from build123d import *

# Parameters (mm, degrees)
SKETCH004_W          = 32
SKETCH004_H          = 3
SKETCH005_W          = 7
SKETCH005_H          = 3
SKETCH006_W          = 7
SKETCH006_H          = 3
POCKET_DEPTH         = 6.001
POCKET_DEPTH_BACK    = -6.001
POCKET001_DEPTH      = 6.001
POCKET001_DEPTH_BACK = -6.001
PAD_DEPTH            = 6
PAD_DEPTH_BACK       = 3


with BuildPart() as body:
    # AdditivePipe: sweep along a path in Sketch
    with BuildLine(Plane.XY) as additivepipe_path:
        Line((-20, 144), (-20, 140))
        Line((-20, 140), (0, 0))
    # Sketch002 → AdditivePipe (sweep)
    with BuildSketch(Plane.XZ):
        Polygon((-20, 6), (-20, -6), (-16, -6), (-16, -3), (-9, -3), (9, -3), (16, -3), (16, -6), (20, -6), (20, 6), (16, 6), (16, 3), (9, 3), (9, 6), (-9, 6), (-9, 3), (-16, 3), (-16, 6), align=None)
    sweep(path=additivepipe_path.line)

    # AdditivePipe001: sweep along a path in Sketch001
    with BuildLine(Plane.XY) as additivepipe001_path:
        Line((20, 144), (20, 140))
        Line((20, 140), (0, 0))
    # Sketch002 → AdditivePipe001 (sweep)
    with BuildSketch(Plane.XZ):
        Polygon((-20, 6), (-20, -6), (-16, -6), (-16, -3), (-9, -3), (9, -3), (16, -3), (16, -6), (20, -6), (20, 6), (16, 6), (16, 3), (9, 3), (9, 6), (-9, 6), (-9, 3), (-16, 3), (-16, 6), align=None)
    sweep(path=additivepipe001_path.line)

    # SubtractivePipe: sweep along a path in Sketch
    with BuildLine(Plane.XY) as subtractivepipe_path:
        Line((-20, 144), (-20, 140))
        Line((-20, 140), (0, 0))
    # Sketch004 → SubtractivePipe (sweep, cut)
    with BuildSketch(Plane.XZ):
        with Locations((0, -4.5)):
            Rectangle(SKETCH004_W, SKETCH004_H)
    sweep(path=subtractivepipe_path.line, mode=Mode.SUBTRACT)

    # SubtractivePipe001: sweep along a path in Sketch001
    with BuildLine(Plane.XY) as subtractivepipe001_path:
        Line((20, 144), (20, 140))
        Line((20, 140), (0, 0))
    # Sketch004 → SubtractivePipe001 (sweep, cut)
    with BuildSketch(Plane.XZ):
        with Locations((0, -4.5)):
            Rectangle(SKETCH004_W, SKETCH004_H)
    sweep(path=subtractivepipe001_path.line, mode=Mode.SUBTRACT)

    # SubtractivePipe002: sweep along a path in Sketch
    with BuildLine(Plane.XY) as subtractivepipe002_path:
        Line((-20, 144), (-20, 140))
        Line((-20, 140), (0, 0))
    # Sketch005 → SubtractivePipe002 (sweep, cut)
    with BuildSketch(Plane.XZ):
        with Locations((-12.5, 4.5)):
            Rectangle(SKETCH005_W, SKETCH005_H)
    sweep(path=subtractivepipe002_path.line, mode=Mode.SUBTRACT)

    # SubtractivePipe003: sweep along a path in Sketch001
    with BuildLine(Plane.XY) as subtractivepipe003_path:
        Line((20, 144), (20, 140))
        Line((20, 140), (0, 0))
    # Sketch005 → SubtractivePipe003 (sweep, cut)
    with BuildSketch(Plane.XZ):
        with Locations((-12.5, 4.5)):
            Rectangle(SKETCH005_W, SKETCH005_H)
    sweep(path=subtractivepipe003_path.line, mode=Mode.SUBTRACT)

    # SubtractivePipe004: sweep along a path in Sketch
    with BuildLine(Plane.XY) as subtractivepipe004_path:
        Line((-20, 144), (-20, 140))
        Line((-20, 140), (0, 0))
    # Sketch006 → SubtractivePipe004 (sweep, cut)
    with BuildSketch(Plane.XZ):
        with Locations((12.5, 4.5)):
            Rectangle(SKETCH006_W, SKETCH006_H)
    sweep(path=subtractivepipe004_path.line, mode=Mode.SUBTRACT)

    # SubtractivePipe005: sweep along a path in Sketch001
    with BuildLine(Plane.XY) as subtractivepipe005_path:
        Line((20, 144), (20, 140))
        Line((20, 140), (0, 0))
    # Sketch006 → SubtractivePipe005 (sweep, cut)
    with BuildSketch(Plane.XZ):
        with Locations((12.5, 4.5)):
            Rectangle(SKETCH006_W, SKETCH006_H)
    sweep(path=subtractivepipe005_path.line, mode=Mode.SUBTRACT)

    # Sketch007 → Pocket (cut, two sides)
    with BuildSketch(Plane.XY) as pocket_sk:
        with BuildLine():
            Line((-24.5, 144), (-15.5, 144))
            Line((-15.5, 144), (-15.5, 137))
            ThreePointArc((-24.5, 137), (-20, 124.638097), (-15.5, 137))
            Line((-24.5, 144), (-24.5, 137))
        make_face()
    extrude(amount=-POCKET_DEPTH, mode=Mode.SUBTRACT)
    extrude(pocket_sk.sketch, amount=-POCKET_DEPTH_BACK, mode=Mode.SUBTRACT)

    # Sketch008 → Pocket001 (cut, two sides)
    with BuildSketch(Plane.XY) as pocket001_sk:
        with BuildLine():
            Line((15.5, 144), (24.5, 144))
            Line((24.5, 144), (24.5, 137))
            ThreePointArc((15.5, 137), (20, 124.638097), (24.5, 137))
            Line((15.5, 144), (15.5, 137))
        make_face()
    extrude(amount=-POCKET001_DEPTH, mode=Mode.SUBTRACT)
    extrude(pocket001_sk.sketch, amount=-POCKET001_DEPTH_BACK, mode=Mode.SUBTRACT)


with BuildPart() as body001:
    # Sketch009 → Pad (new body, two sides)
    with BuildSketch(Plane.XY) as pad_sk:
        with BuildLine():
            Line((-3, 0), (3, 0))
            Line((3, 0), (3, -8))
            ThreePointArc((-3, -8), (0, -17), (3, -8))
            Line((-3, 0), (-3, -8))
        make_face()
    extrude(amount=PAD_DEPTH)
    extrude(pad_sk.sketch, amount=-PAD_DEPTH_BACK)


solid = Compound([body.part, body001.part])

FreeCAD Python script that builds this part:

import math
import FreeCAD as App
import Part
import Sketcher
Q = App.Units.Quantity


def add_polygon(sketch, points):
    """Adds a closed chain of lines whose ends are joined by coincident constraints."""
    first, n = sketch.GeometryCount, len(points)
    for a, b in zip(points, points[1:] + points[:1]):
        sketch.addGeometry(Part.LineSegment(App.Vector(*a, 0), App.Vector(*b, 0)), False)
    for i in range(n):
        sketch.addConstraint(Sketcher.Constraint("Coincident", first + i, 2, first + (i + 1) % n, 1))

doc = App.newDocument("Part")
body = doc.addObject("PartDesign::Body", "Body")

# Sketch on XZ plane
sketch1 = doc.addObject("Sketcher::SketchObject", "Sketch")
body.addObject(sketch1)
sketch1.AttachmentSupport = (doc.XZ_Plane, [""])
sketch1.MapMode = "FlatFace"
add_polygon(sketch1, [(-20, 6), (-20, -6), (-16, -6), (-16, -3), (16, -3), (16, -6), (20, -6), (20, 6), (16, 6), (16, 3), (9, 3), (9, 6), (-9, 6), (-9, 3), (-16, 3), (-16, 6)])  # lines 0-15
sketch1.addConstraint([
    Sketcher.Constraint("Vertical", 0),
    Sketcher.Constraint("Horizontal", 1),
    Sketcher.Constraint("Vertical", 2),
    Sketcher.Constraint("Horizontal", 3),
    Sketcher.Constraint("Vertical", 4),
    Sketcher.Constraint("Horizontal", 5),
    Sketcher.Constraint("Vertical", 6),
    Sketcher.Constraint("Horizontal", 7),
    Sketcher.Constraint("Vertical", 8),
    Sketcher.Constraint("Horizontal", 9),
    Sketcher.Constraint("Vertical", 10),
    Sketcher.Constraint("Horizontal", 11),
    Sketcher.Constraint("Vertical", 12),
    Sketcher.Constraint("Horizontal", 13),
    Sketcher.Constraint("Vertical", 14),
    Sketcher.Constraint("Horizontal", 15),
    Sketcher.Constraint("Symmetric", 0, 2, 6, 2, -1, 1),
    Sketcher.Constraint("Symmetric", 2, 2, 8, 2, -1, 1),
    Sketcher.Constraint("Symmetric", 3, 2, 13, 2, -1, 1),
    Sketcher.Constraint("Symmetric", 1, 2, 4, 2, -2),
    Sketcher.Constraint("Horizontal", 7, 2, 10, 2),
    Sketcher.Constraint("Horizontal", 11, 2, 14, 2),
    Sketcher.Constraint("Equal", 9, 13),
    Sketcher.Constraint("DistanceX", 1, 1, 1, 2, Q("4 mm")),
    Sketcher.Constraint("DistanceX", 3, 1, 3, 2, Q("32 mm")),
    Sketcher.Constraint("DistanceX", 9, 2, 9, 1, Q("7 mm")),
    Sketcher.Constraint("DistanceY", 0, 2, 0, 1, Q("12 mm")),
    Sketcher.Constraint("DistanceY", 2, 1, 2, 2, Q("3 mm")),
])

# Sketch on XY plane
sketch2 = doc.addObject("Sketcher::SketchObject", "Sketch001")
body.addObject(sketch2)
sketch2.AttachmentSupport = (doc.XY_Plane, [""])
sketch2.MapMode = "FlatFace"
sketch2.addGeometry([
    Part.LineSegment(App.Vector(-20, 144, 0), App.Vector(-20, 140, 0)),
    Part.LineSegment(App.Vector(-20, 140, 0), App.Vector(0, 0, 0)),
], False)
sketch2.addConstraint([
    Sketcher.Constraint("Coincident", 0, 2, 1, 1),
    Sketcher.Constraint("Vertical", 0),
    Sketcher.Constraint("Coincident", 1, 2, -1, 1),
    Sketcher.Constraint("DistanceY", 0, 2, 0, 1, Q("4 mm")),
    Sketcher.Constraint("DistanceX", 0, 1, -1, 1, Q("20 mm")),
    Sketcher.Constraint("DistanceY", -1, 1, 0, 1, Q("144 mm")),
])
doc.recompute()

additivepipe = doc.addObject("PartDesign::AdditivePipe", "AdditivePipe")
body.addObject(additivepipe)
additivepipe.Profile = sketch1
additivepipe.Spine = (sketch2, ["Edge1", "Edge2"])

# Sketch on XZ plane
sketch3 = doc.addObject("Sketcher::SketchObject", "Sketch002")
body.addObject(sketch3)
sketch3.AttachmentSupport = (doc.XZ_Plane, [""])
sketch3.MapMode = "FlatFace"
add_polygon(sketch3, [(-20, 6), (-20, -6), (-16, -6), (-16, -3), (16, -3), (16, -6), (20, -6), (20, 6), (16, 6), (16, 3), (9, 3), (9, 6), (-9, 6), (-9, 3), (-16, 3), (-16, 6)])  # lines 0-15
sketch3.addConstraint([
    Sketcher.Constraint("Vertical", 0),
    Sketcher.Constraint("Horizontal", 1),
    Sketcher.Constraint("Vertical", 2),
    Sketcher.Constraint("Horizontal", 3),
    Sketcher.Constraint("Vertical", 4),
    Sketcher.Constraint("Horizontal", 5),
    Sketcher.Constraint("Vertical", 6),
    Sketcher.Constraint("Horizontal", 7),
    Sketcher.Constraint("Vertical", 8),
    Sketcher.Constraint("Horizontal", 9),
    Sketcher.Constraint("Vertical", 10),
    Sketcher.Constraint("Horizontal", 11),
    Sketcher.Constraint("Vertical", 12),
    Sketcher.Constraint("Horizontal", 13),
    Sketcher.Constraint("Vertical", 14),
    Sketcher.Constraint("Horizontal", 15),
    Sketcher.Constraint("Symmetric", 0, 2, 6, 2, -1, 1),
    Sketcher.Constraint("Symmetric", 2, 2, 8, 2, -1, 1),
    Sketcher.Constraint("Symmetric", 3, 2, 13, 2, -1, 1),
    Sketcher.Constraint("Symmetric", 1, 2, 4, 2, -2),
    Sketcher.Constraint("Horizontal", 7, 2, 10, 2),
    Sketcher.Constraint("Horizontal", 11, 2, 14, 2),
    Sketcher.Constraint("Equal", 9, 13),
    Sketcher.Constraint("DistanceX", 1, 1, 1, 2, Q("4 mm")),
    Sketcher.Constraint("DistanceX", 3, 1, 3, 2, Q("32 mm")),
    Sketcher.Constraint("DistanceX", 9, 2, 9, 1, Q("7 mm")),
    Sketcher.Constraint("DistanceY", 0, 2, 0, 1, Q("12 mm")),
    Sketcher.Constraint("DistanceY", 2, 1, 2, 2, Q("3 mm")),
])

# Sketch on XY plane
sketch4 = doc.addObject("Sketcher::SketchObject", "Sketch003")
body.addObject(sketch4)
sketch4.AttachmentSupport = (doc.XY_Plane, [""])
sketch4.MapMode = "FlatFace"
sketch4.addGeometry([
    Part.LineSegment(App.Vector(20, 144, 0), App.Vector(20, 140, 0)),
    Part.LineSegment(App.Vector(20, 140, 0), App.Vector(0, 0, 0)),
], False)
sketch4.addConstraint([
    Sketcher.Constraint("Coincident", 0, 2, 1, 1),
    Sketcher.Constraint("Vertical", 0),
    Sketcher.Constraint("Coincident", 1, 2, -1, 1),
    Sketcher.Constraint("DistanceY", 0, 2, 0, 1, Q("4 mm")),
    Sketcher.Constraint("DistanceX", -1, 1, 0, 1, Q("20 mm")),
    Sketcher.Constraint("DistanceY", -1, 1, 0, 1, Q("144 mm")),
])
doc.recompute()

additivepipe2 = doc.addObject("PartDesign::AdditivePipe", "AdditivePipe001")
body.addObject(additivepipe2)
additivepipe2.Profile = sketch3
additivepipe2.Spine = (sketch4, ["Edge1", "Edge2"])

# Sketch on XZ plane
sketch5 = doc.addObject("Sketcher::SketchObject", "Sketch004")
body.addObject(sketch5)
sketch5.AttachmentSupport = (doc.XZ_Plane, [""])
sketch5.MapMode = "FlatFace"
add_polygon(sketch5, [(-16, -3), (-16, -6), (16, -6), (16, -3)])  # lines 0-3
sketch5.addConstraint([
    Sketcher.Constraint("Vertical", 0),
    Sketcher.Constraint("Horizontal", 1),
    Sketcher.Constraint("Vertical", 2),
    Sketcher.Constraint("Horizontal", 3),
    Sketcher.Constraint("DistanceX", 1, 1, 1, 2, Q("32 mm")),
    Sketcher.Constraint("DistanceY", 0, 2, 0, 1, Q("3 mm")),
    Sketcher.Constraint("DistanceX", 0, 2, -1, 1, Q("16 mm")),
    Sketcher.Constraint("DistanceY", 0, 2, -1, 1, Q("6 mm")),
])

# Sketch on XY plane
sketch6 = doc.addObject("Sketcher::SketchObject", "Sketch005")
body.addObject(sketch6)
sketch6.AttachmentSupport = (doc.XY_Plane, [""])
sketch6.MapMode = "FlatFace"
sketch6.addGeometry([
    Part.LineSegment(App.Vector(-20, 144, 0), App.Vector(-20, 140, 0)),
    Part.LineSegment(App.Vector(-20, 140, 0), App.Vector(0, 0, 0)),
], False)
sketch6.addConstraint([
    Sketcher.Constraint("Coincident", 0, 2, 1, 1),
    Sketcher.Constraint("Vertical", 0),
    Sketcher.Constraint("Coincident", 1, 2, -1, 1),
    Sketcher.Constraint("DistanceY", 0, 2, 0, 1, Q("4 mm")),
    Sketcher.Constraint("DistanceX", 0, 1, -1, 1, Q("20 mm")),
    Sketcher.Constraint("DistanceY", -1, 1, 0, 1, Q("144 mm")),
])
doc.recompute()

subtractivepipe = doc.addObject("PartDesign::SubtractivePipe", "SubtractivePipe")
body.addObject(subtractivepipe)
subtractivepipe.Profile = sketch5
subtractivepipe.Spine = (sketch6, ["Edge1", "Edge2"])

# Sketch on XZ plane
sketch7 = doc.addObject("Sketcher::SketchObject", "Sketch006")
body.addObject(sketch7)
sketch7.AttachmentSupport = (doc.XZ_Plane, [""])
sketch7.MapMode = "FlatFace"
add_polygon(sketch7, [(-16, -3), (-16, -6), (16, -6), (16, -3)])  # lines 0-3
sketch7.addConstraint([
    Sketcher.Constraint("Vertical", 0),
    Sketcher.Constraint("Horizontal", 1),
    Sketcher.Constraint("Vertical", 2),
    Sketcher.Constraint("Horizontal", 3),
    Sketcher.Constraint("DistanceX", 1, 1, 1, 2, Q("32 mm")),
    Sketcher.Constraint("DistanceY", 0, 2, 0, 1, Q("3 mm")),
    Sketcher.Constraint("DistanceX", 0, 2, -1, 1, Q("16 mm")),
    Sketcher.Constraint("DistanceY", 0, 2, -1, 1, Q("6 mm")),
])

# Sketch on XY plane
sketch8 = doc.addObject("Sketcher::SketchObject", "Sketch007")
body.addObject(sketch8)
sketch8.AttachmentSupport = (doc.XY_Plane, [""])
sketch8.MapMode = "FlatFace"
sketch8.addGeometry([
    Part.LineSegment(App.Vector(20, 144, 0), App.Vector(20, 140, 0)),
    Part.LineSegment(App.Vector(20, 140, 0), App.Vector(0, 0, 0)),
], False)
sketch8.addConstraint([
    Sketcher.Constraint("Coincident", 0, 2, 1, 1),
    Sketcher.Constraint("Vertical", 0),
    Sketcher.Constraint("Coincident", 1, 2, -1, 1),
    Sketcher.Constraint("DistanceY", 0, 2, 0, 1, Q("4 mm")),
    Sketcher.Constraint("DistanceX", -1, 1, 0, 1, Q("20 mm")),
    Sketcher.Constraint("DistanceY", -1, 1, 0, 1, Q("144 mm")),
])
doc.recompute()

subtractivepipe2 = doc.addObject("PartDesign::SubtractivePipe", "SubtractivePipe001")
body.addObject(subtractivepipe2)
subtractivepipe2.Profile = sketch7
subtractivepipe2.Spine = (sketch8, ["Edge1", "Edge2"])

# Sketch on XZ plane
sketch9 = doc.addObject("Sketcher::SketchObject", "Sketch008")
body.addObject(sketch9)
sketch9.AttachmentSupport = (doc.XZ_Plane, [""])
sketch9.MapMode = "FlatFace"
add_polygon(sketch9, [(-16, 6), (-16, 3), (-9, 3), (-9, 6)])  # lines 0-3
sketch9.addConstraint([
    Sketcher.Constraint("Vertical", 0),
    Sketcher.Constraint("Horizontal", 1),
    Sketcher.Constraint("Vertical", 2),
    Sketcher.Constraint("Horizontal", 3),
    Sketcher.Constraint("DistanceX", 1, 1, 1, 2, Q("7 mm")),
    Sketcher.Constraint("DistanceY", 0, 2, 0, 1, Q("3 mm")),
    Sketcher.Constraint("DistanceX", 0, 2, -1, 1, Q("16 mm")),
    Sketcher.Constraint("DistanceY", -1, 1, 0, 2, Q("3 mm")),
])

# Sketch on XY plane
sketch10 = doc.addObject("Sketcher::SketchObject", "Sketch009")
body.addObject(sketch10)
sketch10.AttachmentSupport = (doc.XY_Plane, [""])
sketch10.MapMode = "FlatFace"
sketch10.addGeometry([
    Part.LineSegment(App.Vector(-20, 144, 0), App.Vector(-20, 140, 0)),
    Part.LineSegment(App.Vector(-20, 140, 0), App.Vector(0, 0, 0)),
], False)
sketch10.addConstraint([
    Sketcher.Constraint("Coincident", 0, 2, 1, 1),
    Sketcher.Constraint("Vertical", 0),
    Sketcher.Constraint("Coincident", 1, 2, -1, 1),
    Sketcher.Constraint("DistanceY", 0, 2, 0, 1, Q("4 mm")),
    Sketcher.Constraint("DistanceX", 0, 1, -1, 1, Q("20 mm")),
    Sketcher.Constraint("DistanceY", -1, 1, 0, 1, Q("144 mm")),
])
doc.recompute()

subtractivepipe3 = doc.addObject("PartDesign::SubtractivePipe", "SubtractivePipe002")
body.addObject(subtractivepipe3)
subtractivepipe3.Profile = sketch9
subtractivepipe3.Spine = (sketch10, ["Edge1", "Edge2"])

# Sketch on XZ plane
sketch11 = doc.addObject("Sketcher::SketchObject", "Sketch010")
body.addObject(sketch11)
sketch11.AttachmentSupport = (doc.XZ_Plane, [""])
sketch11.MapMode = "FlatFace"
add_polygon(sketch11, [(-16, 6), (-16, 3), (-9, 3), (-9, 6)])  # lines 0-3
sketch11.addConstraint([
    Sketcher.Constraint("Vertical", 0),
    Sketcher.Constraint("Horizontal", 1),
    Sketcher.Constraint("Vertical", 2),
    Sketcher.Constraint("Horizontal", 3),
    Sketcher.Constraint("DistanceX", 1, 1, 1, 2, Q("7 mm")),
    Sketcher.Constraint("DistanceY", 0, 2, 0, 1, Q("3 mm")),
    Sketcher.Constraint("DistanceX", 0, 2, -1, 1, Q("16 mm")),
    Sketcher.Constraint("DistanceY", -1, 1, 0, 2, Q("3 mm")),
])

# Sketch on XY plane
sketch12 = doc.addObject("Sketcher::SketchObject", "Sketch011")
body.addObject(sketch12)
sketch12.AttachmentSupport = (doc.XY_Plane, [""])
sketch12.MapMode = "FlatFace"
sketch12.addGeometry([
    Part.LineSegment(App.Vector(20, 144, 0), App.Vector(20, 140, 0)),
    Part.LineSegment(App.Vector(20, 140, 0), App.Vector(0, 0, 0)),
], False)
sketch12.addConstraint([
    Sketcher.Constraint("Coincident", 0, 2, 1, 1),
    Sketcher.Constraint("Vertical", 0),
    Sketcher.Constraint("Coincident", 1, 2, -1, 1),
    Sketcher.Constraint("DistanceY", 0, 2, 0, 1, Q("4 mm")),
    Sketcher.Constraint("DistanceX", -1, 1, 0, 1, Q("20 mm")),
    Sketcher.Constraint("DistanceY", -1, 1, 0, 1, Q("144 mm")),
])
doc.recompute()

subtractivepipe4 = doc.addObject("PartDesign::SubtractivePipe", "SubtractivePipe003")
body.addObject(subtractivepipe4)
subtractivepipe4.Profile = sketch11
subtractivepipe4.Spine = (sketch12, ["Edge1", "Edge2"])

# Sketch on XZ plane
sketch13 = doc.addObject("Sketcher::SketchObject", "Sketch012")
body.addObject(sketch13)
sketch13.AttachmentSupport = (doc.XZ_Plane, [""])
sketch13.MapMode = "FlatFace"
add_polygon(sketch13, [(9, 6), (9, 3), (16, 3), (16, 6)])  # lines 0-3
sketch13.addConstraint([
    Sketcher.Constraint("Vertical", 0),
    Sketcher.Constraint("Horizontal", 1),
    Sketcher.Constraint("Vertical", 2),
    Sketcher.Constraint("Horizontal", 3),
    Sketcher.Constraint("DistanceX", 1, 1, 1, 2, Q("7 mm")),
    Sketcher.Constraint("DistanceY", 0, 2, 0, 1, Q("3 mm")),
    Sketcher.Constraint("DistanceX", -1, 1, 0, 2, Q("9 mm")),
    Sketcher.Constraint("DistanceY", -1, 1, 0, 2, Q("3 mm")),
])

# Sketch on XY plane
sketch14 = doc.addObject("Sketcher::SketchObject", "Sketch013")
body.addObject(sketch14)
sketch14.AttachmentSupport = (doc.XY_Plane, [""])
sketch14.MapMode = "FlatFace"
sketch14.addGeometry([
    Part.LineSegment(App.Vector(-20, 144, 0), App.Vector(-20, 140, 0)),
    Part.LineSegment(App.Vector(-20, 140, 0), App.Vector(0, 0, 0)),
], False)
sketch14.addConstraint([
    Sketcher.Constraint("Coincident", 0, 2, 1, 1),
    Sketcher.Constraint("Vertical", 0),
    Sketcher.Constraint("Coincident", 1, 2, -1, 1),
    Sketcher.Constraint("DistanceY", 0, 2, 0, 1, Q("4 mm")),
    Sketcher.Constraint("DistanceX", 0, 1, -1, 1, Q("20 mm")),
    Sketcher.Constraint("DistanceY", -1, 1, 0, 1, Q("144 mm")),
])
doc.recompute()

subtractivepipe5 = doc.addObject("PartDesign::SubtractivePipe", "SubtractivePipe004")
body.addObject(subtractivepipe5)
subtractivepipe5.Profile = sketch13
subtractivepipe5.Spine = (sketch14, ["Edge1", "Edge2"])

# Sketch on XZ plane
sketch15 = doc.addObject("Sketcher::SketchObject", "Sketch014")
body.addObject(sketch15)
sketch15.AttachmentSupport = (doc.XZ_Plane, [""])
sketch15.MapMode = "FlatFace"
add_polygon(sketch15, [(9, 6), (9, 3), (16, 3), (16, 6)])  # lines 0-3
sketch15.addConstraint([
    Sketcher.Constraint("Vertical", 0),
    Sketcher.Constraint("Horizontal", 1),
    Sketcher.Constraint("Vertical", 2),
    Sketcher.Constraint("Horizontal", 3),
    Sketcher.Constraint("DistanceX", 1, 1, 1, 2, Q("7 mm")),
    Sketcher.Constraint("DistanceY", 0, 2, 0, 1, Q("3 mm")),
    Sketcher.Constraint("DistanceX", -1, 1, 0, 2, Q("9 mm")),
    Sketcher.Constraint("DistanceY", -1, 1, 0, 2, Q("3 mm")),
])

# Sketch on XY plane
sketch16 = doc.addObject("Sketcher::SketchObject", "Sketch015")
body.addObject(sketch16)
sketch16.AttachmentSupport = (doc.XY_Plane, [""])
sketch16.MapMode = "FlatFace"
sketch16.addGeometry([
    Part.LineSegment(App.Vector(20, 144, 0), App.Vector(20, 140, 0)),
    Part.LineSegment(App.Vector(20, 140, 0), App.Vector(0, 0, 0)),
], False)
sketch16.addConstraint([
    Sketcher.Constraint("Coincident", 0, 2, 1, 1),
    Sketcher.Constraint("Vertical", 0),
    Sketcher.Constraint("Coincident", 1, 2, -1, 1),
    Sketcher.Constraint("DistanceY", 0, 2, 0, 1, Q("4 mm")),
    Sketcher.Constraint("DistanceX", -1, 1, 0, 1, Q("20 mm")),
    Sketcher.Constraint("DistanceY", -1, 1, 0, 1, Q("144 mm")),
])
doc.recompute()

subtractivepipe6 = doc.addObject("PartDesign::SubtractivePipe", "SubtractivePipe005")
body.addObject(subtractivepipe6)
subtractivepipe6.Profile = sketch15
subtractivepipe6.Spine = (sketch16, ["Edge1", "Edge2"])

# Sketch on XY plane
sketch17 = doc.addObject("Sketcher::SketchObject", "Sketch016")
body.addObject(sketch17)
sketch17.AttachmentSupport = (doc.XY_Plane, [""])
sketch17.MapMode = "FlatFace"
sketch17.addGeometry([
    Part.LineSegment(App.Vector(-16, 144, 0), App.Vector(-24, 144, 0)),
    Part.LineSegment(App.Vector(-24, 144, 0), App.Vector(-24, 137, 0)),
    Part.ArcOfCircle(Part.Circle(App.Vector(-20, 132, 0), App.Vector(0, 0, 1), 7), math.radians(130), math.radians(410)),
    Part.LineSegment(App.Vector(-16, 137, 0), App.Vector(-16, 144, 0)),
], False)
sketch17.addConstraint([
    Sketcher.Constraint("Coincident", 0, 2, 1, 1),
    Sketcher.Constraint("Coincident", 1, 2, 2, 1),
    Sketcher.Constraint("Coincident", 2, 2, 3, 1),
    Sketcher.Constraint("Coincident", 3, 2, 0, 1),
    Sketcher.Constraint("Horizontal", 0),
    Sketcher.Constraint("Vertical", 1),
    Sketcher.Constraint("Vertical", 3),
    Sketcher.Constraint("Horizontal", 1, 2, 2, 2),
    Sketcher.Constraint("Radius", 2, Q("7 mm")),
    Sketcher.Constraint("DistanceX", 0, 2, 0, 1, Q("9 mm")),
    Sketcher.Constraint("DistanceY", 1, 2, 1, 1, Q("7 mm")),
    Sketcher.Constraint("DistanceX", 2, 3, -1, 1, Q("20 mm")),
    Sketcher.Constraint("DistanceY", -1, 1, 0, 2, Q("144 mm")),
])
pocket1 = doc.addObject("PartDesign::Pocket", "Pocket")
body.addObject(pocket1)
pocket1.Profile = sketch17
pocket1.Type = "ThroughAll"
pocket1.Midplane = True

# Sketch on XY plane
sketch18 = doc.addObject("Sketcher::SketchObject", "Sketch017")
body.addObject(sketch18)
sketch18.AttachmentSupport = (doc.XY_Plane, [""])
sketch18.MapMode = "FlatFace"
sketch18.addGeometry([
    Part.LineSegment(App.Vector(24, 144, 0), App.Vector(16, 144, 0)),
    Part.LineSegment(App.Vector(16, 144, 0), App.Vector(16, 137, 0)),
    Part.ArcOfCircle(Part.Circle(App.Vector(20, 132, 0), App.Vector(0, 0, 1), 7), math.radians(130), math.radians(410)),
    Part.LineSegment(App.Vector(24, 137, 0), App.Vector(24, 144, 0)),
], False)
sketch18.addConstraint([
    Sketcher.Constraint("Coincident", 0, 2, 1, 1),
    Sketcher.Constraint("Coincident", 1, 2, 2, 1),
    Sketcher.Constraint("Coincident", 2, 2, 3, 1),
    Sketcher.Constraint("Coincident", 3, 2, 0, 1),
    Sketcher.Constraint("Horizontal", 0),
    Sketcher.Constraint("Vertical", 1),
    Sketcher.Constraint("Vertical", 3),
    Sketcher.Constraint("Horizontal", 1, 2, 2, 2),
    Sketcher.Constraint("Radius", 2, Q("7 mm")),
    Sketcher.Constraint("DistanceX", 0, 2, 0, 1, Q("9 mm")),
    Sketcher.Constraint("DistanceY", 1, 2, 1, 1, Q("7 mm")),
    Sketcher.Constraint("DistanceX", -1, 1, 2, 3, Q("20 mm")),
    Sketcher.Constraint("DistanceY", -1, 1, 0, 2, Q("144 mm")),
])
pocket2 = doc.addObject("PartDesign::Pocket", "Pocket001")
body.addObject(pocket2)
pocket2.Profile = sketch18
pocket2.Type = "ThroughAll"
pocket2.Midplane = True
body2 = doc.addObject("PartDesign::Body", "Body001")

# Sketch on XY plane
sketch19 = doc.addObject("Sketcher::SketchObject", "Sketch018")
body2.addObject(sketch19)
sketch19.AttachmentSupport = (doc.getObject("XY_Plane001"), [""])
sketch19.MapMode = "FlatFace"
sketch19.addGeometry([
    Part.LineSegment(App.Vector(3, 0, 0), App.Vector(-3, 0, 0)),
    Part.LineSegment(App.Vector(-3, 0, 0), App.Vector(-3, -8, 0)),
    Part.ArcOfCircle(Part.Circle(App.Vector(0, -12, 0), App.Vector(0, 0, 1), 5), math.radians(127), math.radians(413)),
    Part.LineSegment(App.Vector(3, -8, 0), App.Vector(3, 0, 0)),
], False)
sketch19.addConstraint([
    Sketcher.Constraint("Coincident", 0, 2, 1, 1),
    Sketcher.Constraint("Coincident", 1, 2, 2, 1),
    Sketcher.Constraint("Coincident", 2, 2, 3, 1),
    Sketcher.Constraint("Coincident", 3, 2, 0, 1),
    Sketcher.Constraint("Horizontal", 0),
    Sketcher.Constraint("Vertical", 1),
    Sketcher.Constraint("Vertical", 3),
    Sketcher.Constraint("Symmetric", 0, 2, 3, 2, -1, 1),
    Sketcher.Constraint("PointOnObject", 2, 3, -2),
    Sketcher.Constraint("Radius", 2, Q("5 mm")),
    Sketcher.Constraint("DistanceX", 0, 2, 0, 1, Q("6 mm")),
    Sketcher.Constraint("DistanceY", 1, 2, 1, 1, Q("8 mm")),
])
pad1 = doc.addObject("PartDesign::Pad", "Pad")
body2.addObject(pad1)
pad1.Profile = sketch19
pad1.Type = "TwoLengths"
pad1.Length = 6
pad1.Length2 = 3

doc.recompute()
